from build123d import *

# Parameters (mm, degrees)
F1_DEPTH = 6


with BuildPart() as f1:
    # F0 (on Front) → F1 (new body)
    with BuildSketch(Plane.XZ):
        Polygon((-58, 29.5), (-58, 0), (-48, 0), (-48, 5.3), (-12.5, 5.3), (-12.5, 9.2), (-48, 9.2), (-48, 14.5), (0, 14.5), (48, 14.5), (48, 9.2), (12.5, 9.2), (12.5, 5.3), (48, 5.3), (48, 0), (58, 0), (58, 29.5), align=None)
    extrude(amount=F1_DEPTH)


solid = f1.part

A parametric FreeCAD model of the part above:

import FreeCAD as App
import Part
import Sketcher

doc = App.newDocument("Part")
body = doc.addObject("PartDesign::Body", "Body")

sketch1 = doc.addObject("Sketcher::SketchObject", "Sketch")
body.addObject(sketch1)
sketch1.AttachmentSupport = (doc.XZ_Plane, [""])
sketch1.MapMode = "FlatFace"
sketch1.addGeometry([
    Part.LineSegment(App.Vector(-58, 29.5, 0), App.Vector(-58, 0, 0)),
    Part.LineSegment(App.Vector(-58, 0, 0), App.Vector(-48, 0, 0)),
    Part.LineSegment(App.Vector(-48, 0, 0), App.Vector(-48, 5.3, 0)),
    Part.LineSegment(App.Vector(-48, 5.3, 0), App.Vector(-12.5, 5.3, 0)),
    Part.LineSegment(App.Vector(-12.5, 5.3, 0), App.Vector(-12.5, 9.2, 0)),
    Part.LineSegment(App.Vector(-12.5, 9.2, 0), App.Vector(-48, 9.2, 0)),
    Part.LineSegment(App.Vector(-48, 9.2, 0), App.Vector(-48, 14.5, 0)),
    Part.LineSegment(App.Vector(-48, 14.5, 0), App.Vector(48, 14.5, 0)),
    Part.LineSegment(App.Vector(48, 14.5, 0), App.Vector(48, 9.2, 0)),
    Part.LineSegment(App.Vector(48, 9.2, 0), App.Vector(12.5, 9.2, 0)),
    Part.LineSegment(App.Vector(12.5, 9.2, 0), App.Vector(12.5, 5.3, 0)),
    Part.LineSegment(App.Vector(12.5, 5.3, 0), App.Vector(48, 5.3, 0)),
    Part.LineSegment(App.Vector(48, 5.3, 0), App.Vector(48, 0, 0)),
    Part.LineSegment(App.Vector(48, 0, 0), App.Vector(58, 0, 0)),
    Part.LineSegment(App.Vector(58, 0, 0), App.Vector(58, 29.5, 0)),
    Part.LineSegment(App.Vector(58, 29.5, 0), App.Vector(-58, 29.5, 0)),
], False)
sketch1.addConstraint([
    Sketcher.Constraint("Coincident", 0, 2, 1, 1),
    Sketcher.Constraint("Coincident", 1, 2, 2, 1),
    Sketcher.Constraint("Coincident", 2, 2, 3, 1),
    Sketcher.Constraint("Coincident", 3, 2, 4, 1),
    Sketcher.Constraint("Coincident", 4, 2, 5, 1),
    Sketcher.Constraint("Coincident", 5, 2, 6, 1),
    Sketcher.Constraint("Coincident", 6, 2, 7, 1),
    Sketcher.Constraint("Coincident", 7, 2, 8, 1),
    Sketcher.Constraint("Coincident", 8, 2, 9, 1),
    Sketcher.Constraint("Coincident", 9, 2, 10, 1),
    Sketcher.Constraint("Coincident", 10, 2, 11, 1),
    Sketcher.Constraint("Coincident", 11, 2, 12, 1),
    Sketcher.Constraint("Coincident", 12, 2, 13, 1),
    Sketcher.Constraint("Coincident", 13, 2, 14, 1),
    Sketcher.Constraint("Coincident", 14, 2, 15, 1),
    Sketcher.Constraint("Coincident", 15, 2, 0, 1),
    Sketcher.Constraint("Vertical", 0),
    Sketcher.Constraint("Horizontal", 1),
    Sketcher.Constraint("Vertical", 2),
    Sketcher.Constraint("Horizontal", 3),
    Sketcher.Constraint("Vertical", 4),
    Sketcher.Constraint("Horizontal", 5),
    Sketcher.Constraint("Vertical", 6),
    Sketcher.Constraint("Horizontal", 7),
    Sketcher.Constraint("Vertical", 8),
    Sketcher.Constraint("Horizontal", 9),
    Sketcher.Constraint("Vertical", 10),
    Sketcher.Constraint("Horizontal", 11),
    Sketcher.Constraint("Vertical", 12),
    Sketcher.Constraint("Horizontal", 13),
    Sketcher.Constraint("Vertical", 14),
    Sketcher.Constraint("Horizontal", 15),
    Sketcher.Constraint("Symmetric", 1, 2, 12, 2, -1, 1),
    Sketcher.Constraint("Symmetric", 5, 2, 8, 2, -2),
    Sketcher.Constraint("Symmetric", 3, 2, 10, 2, -2),
    Sketcher.Constraint("Symmetric", 0, 2, 13, 2, -2),
    Sketcher.Constraint("Vertical", 2, 2, 5, 2),
    Sketcher.Constraint("Equal", 2, 6),
    Sketcher.Constraint("DistanceX", 1, 1, 1, 2, 10.0),
    Sketcher.Constraint("DistanceX", 7, 1, 7, 2, 96.0),
    Sketcher.Constraint("DistanceX", 3, 1, 3, 2, 35.5),
    Sketcher.Constraint("DistanceY", 0, 2, 0, 1, 29.5),
    Sketcher.Constraint("DistanceY", 2, 1, 2, 2, 5.3),
    Sketcher.Constraint("DistanceY", 4, 1, 4, 2, 3.9),
])
pad1 = doc.addObject("PartDesign::Pad", "Pad")
body.addObject(pad1)
pad1.Profile = sketch1
pad1.Length = 6

doc.recompute()
